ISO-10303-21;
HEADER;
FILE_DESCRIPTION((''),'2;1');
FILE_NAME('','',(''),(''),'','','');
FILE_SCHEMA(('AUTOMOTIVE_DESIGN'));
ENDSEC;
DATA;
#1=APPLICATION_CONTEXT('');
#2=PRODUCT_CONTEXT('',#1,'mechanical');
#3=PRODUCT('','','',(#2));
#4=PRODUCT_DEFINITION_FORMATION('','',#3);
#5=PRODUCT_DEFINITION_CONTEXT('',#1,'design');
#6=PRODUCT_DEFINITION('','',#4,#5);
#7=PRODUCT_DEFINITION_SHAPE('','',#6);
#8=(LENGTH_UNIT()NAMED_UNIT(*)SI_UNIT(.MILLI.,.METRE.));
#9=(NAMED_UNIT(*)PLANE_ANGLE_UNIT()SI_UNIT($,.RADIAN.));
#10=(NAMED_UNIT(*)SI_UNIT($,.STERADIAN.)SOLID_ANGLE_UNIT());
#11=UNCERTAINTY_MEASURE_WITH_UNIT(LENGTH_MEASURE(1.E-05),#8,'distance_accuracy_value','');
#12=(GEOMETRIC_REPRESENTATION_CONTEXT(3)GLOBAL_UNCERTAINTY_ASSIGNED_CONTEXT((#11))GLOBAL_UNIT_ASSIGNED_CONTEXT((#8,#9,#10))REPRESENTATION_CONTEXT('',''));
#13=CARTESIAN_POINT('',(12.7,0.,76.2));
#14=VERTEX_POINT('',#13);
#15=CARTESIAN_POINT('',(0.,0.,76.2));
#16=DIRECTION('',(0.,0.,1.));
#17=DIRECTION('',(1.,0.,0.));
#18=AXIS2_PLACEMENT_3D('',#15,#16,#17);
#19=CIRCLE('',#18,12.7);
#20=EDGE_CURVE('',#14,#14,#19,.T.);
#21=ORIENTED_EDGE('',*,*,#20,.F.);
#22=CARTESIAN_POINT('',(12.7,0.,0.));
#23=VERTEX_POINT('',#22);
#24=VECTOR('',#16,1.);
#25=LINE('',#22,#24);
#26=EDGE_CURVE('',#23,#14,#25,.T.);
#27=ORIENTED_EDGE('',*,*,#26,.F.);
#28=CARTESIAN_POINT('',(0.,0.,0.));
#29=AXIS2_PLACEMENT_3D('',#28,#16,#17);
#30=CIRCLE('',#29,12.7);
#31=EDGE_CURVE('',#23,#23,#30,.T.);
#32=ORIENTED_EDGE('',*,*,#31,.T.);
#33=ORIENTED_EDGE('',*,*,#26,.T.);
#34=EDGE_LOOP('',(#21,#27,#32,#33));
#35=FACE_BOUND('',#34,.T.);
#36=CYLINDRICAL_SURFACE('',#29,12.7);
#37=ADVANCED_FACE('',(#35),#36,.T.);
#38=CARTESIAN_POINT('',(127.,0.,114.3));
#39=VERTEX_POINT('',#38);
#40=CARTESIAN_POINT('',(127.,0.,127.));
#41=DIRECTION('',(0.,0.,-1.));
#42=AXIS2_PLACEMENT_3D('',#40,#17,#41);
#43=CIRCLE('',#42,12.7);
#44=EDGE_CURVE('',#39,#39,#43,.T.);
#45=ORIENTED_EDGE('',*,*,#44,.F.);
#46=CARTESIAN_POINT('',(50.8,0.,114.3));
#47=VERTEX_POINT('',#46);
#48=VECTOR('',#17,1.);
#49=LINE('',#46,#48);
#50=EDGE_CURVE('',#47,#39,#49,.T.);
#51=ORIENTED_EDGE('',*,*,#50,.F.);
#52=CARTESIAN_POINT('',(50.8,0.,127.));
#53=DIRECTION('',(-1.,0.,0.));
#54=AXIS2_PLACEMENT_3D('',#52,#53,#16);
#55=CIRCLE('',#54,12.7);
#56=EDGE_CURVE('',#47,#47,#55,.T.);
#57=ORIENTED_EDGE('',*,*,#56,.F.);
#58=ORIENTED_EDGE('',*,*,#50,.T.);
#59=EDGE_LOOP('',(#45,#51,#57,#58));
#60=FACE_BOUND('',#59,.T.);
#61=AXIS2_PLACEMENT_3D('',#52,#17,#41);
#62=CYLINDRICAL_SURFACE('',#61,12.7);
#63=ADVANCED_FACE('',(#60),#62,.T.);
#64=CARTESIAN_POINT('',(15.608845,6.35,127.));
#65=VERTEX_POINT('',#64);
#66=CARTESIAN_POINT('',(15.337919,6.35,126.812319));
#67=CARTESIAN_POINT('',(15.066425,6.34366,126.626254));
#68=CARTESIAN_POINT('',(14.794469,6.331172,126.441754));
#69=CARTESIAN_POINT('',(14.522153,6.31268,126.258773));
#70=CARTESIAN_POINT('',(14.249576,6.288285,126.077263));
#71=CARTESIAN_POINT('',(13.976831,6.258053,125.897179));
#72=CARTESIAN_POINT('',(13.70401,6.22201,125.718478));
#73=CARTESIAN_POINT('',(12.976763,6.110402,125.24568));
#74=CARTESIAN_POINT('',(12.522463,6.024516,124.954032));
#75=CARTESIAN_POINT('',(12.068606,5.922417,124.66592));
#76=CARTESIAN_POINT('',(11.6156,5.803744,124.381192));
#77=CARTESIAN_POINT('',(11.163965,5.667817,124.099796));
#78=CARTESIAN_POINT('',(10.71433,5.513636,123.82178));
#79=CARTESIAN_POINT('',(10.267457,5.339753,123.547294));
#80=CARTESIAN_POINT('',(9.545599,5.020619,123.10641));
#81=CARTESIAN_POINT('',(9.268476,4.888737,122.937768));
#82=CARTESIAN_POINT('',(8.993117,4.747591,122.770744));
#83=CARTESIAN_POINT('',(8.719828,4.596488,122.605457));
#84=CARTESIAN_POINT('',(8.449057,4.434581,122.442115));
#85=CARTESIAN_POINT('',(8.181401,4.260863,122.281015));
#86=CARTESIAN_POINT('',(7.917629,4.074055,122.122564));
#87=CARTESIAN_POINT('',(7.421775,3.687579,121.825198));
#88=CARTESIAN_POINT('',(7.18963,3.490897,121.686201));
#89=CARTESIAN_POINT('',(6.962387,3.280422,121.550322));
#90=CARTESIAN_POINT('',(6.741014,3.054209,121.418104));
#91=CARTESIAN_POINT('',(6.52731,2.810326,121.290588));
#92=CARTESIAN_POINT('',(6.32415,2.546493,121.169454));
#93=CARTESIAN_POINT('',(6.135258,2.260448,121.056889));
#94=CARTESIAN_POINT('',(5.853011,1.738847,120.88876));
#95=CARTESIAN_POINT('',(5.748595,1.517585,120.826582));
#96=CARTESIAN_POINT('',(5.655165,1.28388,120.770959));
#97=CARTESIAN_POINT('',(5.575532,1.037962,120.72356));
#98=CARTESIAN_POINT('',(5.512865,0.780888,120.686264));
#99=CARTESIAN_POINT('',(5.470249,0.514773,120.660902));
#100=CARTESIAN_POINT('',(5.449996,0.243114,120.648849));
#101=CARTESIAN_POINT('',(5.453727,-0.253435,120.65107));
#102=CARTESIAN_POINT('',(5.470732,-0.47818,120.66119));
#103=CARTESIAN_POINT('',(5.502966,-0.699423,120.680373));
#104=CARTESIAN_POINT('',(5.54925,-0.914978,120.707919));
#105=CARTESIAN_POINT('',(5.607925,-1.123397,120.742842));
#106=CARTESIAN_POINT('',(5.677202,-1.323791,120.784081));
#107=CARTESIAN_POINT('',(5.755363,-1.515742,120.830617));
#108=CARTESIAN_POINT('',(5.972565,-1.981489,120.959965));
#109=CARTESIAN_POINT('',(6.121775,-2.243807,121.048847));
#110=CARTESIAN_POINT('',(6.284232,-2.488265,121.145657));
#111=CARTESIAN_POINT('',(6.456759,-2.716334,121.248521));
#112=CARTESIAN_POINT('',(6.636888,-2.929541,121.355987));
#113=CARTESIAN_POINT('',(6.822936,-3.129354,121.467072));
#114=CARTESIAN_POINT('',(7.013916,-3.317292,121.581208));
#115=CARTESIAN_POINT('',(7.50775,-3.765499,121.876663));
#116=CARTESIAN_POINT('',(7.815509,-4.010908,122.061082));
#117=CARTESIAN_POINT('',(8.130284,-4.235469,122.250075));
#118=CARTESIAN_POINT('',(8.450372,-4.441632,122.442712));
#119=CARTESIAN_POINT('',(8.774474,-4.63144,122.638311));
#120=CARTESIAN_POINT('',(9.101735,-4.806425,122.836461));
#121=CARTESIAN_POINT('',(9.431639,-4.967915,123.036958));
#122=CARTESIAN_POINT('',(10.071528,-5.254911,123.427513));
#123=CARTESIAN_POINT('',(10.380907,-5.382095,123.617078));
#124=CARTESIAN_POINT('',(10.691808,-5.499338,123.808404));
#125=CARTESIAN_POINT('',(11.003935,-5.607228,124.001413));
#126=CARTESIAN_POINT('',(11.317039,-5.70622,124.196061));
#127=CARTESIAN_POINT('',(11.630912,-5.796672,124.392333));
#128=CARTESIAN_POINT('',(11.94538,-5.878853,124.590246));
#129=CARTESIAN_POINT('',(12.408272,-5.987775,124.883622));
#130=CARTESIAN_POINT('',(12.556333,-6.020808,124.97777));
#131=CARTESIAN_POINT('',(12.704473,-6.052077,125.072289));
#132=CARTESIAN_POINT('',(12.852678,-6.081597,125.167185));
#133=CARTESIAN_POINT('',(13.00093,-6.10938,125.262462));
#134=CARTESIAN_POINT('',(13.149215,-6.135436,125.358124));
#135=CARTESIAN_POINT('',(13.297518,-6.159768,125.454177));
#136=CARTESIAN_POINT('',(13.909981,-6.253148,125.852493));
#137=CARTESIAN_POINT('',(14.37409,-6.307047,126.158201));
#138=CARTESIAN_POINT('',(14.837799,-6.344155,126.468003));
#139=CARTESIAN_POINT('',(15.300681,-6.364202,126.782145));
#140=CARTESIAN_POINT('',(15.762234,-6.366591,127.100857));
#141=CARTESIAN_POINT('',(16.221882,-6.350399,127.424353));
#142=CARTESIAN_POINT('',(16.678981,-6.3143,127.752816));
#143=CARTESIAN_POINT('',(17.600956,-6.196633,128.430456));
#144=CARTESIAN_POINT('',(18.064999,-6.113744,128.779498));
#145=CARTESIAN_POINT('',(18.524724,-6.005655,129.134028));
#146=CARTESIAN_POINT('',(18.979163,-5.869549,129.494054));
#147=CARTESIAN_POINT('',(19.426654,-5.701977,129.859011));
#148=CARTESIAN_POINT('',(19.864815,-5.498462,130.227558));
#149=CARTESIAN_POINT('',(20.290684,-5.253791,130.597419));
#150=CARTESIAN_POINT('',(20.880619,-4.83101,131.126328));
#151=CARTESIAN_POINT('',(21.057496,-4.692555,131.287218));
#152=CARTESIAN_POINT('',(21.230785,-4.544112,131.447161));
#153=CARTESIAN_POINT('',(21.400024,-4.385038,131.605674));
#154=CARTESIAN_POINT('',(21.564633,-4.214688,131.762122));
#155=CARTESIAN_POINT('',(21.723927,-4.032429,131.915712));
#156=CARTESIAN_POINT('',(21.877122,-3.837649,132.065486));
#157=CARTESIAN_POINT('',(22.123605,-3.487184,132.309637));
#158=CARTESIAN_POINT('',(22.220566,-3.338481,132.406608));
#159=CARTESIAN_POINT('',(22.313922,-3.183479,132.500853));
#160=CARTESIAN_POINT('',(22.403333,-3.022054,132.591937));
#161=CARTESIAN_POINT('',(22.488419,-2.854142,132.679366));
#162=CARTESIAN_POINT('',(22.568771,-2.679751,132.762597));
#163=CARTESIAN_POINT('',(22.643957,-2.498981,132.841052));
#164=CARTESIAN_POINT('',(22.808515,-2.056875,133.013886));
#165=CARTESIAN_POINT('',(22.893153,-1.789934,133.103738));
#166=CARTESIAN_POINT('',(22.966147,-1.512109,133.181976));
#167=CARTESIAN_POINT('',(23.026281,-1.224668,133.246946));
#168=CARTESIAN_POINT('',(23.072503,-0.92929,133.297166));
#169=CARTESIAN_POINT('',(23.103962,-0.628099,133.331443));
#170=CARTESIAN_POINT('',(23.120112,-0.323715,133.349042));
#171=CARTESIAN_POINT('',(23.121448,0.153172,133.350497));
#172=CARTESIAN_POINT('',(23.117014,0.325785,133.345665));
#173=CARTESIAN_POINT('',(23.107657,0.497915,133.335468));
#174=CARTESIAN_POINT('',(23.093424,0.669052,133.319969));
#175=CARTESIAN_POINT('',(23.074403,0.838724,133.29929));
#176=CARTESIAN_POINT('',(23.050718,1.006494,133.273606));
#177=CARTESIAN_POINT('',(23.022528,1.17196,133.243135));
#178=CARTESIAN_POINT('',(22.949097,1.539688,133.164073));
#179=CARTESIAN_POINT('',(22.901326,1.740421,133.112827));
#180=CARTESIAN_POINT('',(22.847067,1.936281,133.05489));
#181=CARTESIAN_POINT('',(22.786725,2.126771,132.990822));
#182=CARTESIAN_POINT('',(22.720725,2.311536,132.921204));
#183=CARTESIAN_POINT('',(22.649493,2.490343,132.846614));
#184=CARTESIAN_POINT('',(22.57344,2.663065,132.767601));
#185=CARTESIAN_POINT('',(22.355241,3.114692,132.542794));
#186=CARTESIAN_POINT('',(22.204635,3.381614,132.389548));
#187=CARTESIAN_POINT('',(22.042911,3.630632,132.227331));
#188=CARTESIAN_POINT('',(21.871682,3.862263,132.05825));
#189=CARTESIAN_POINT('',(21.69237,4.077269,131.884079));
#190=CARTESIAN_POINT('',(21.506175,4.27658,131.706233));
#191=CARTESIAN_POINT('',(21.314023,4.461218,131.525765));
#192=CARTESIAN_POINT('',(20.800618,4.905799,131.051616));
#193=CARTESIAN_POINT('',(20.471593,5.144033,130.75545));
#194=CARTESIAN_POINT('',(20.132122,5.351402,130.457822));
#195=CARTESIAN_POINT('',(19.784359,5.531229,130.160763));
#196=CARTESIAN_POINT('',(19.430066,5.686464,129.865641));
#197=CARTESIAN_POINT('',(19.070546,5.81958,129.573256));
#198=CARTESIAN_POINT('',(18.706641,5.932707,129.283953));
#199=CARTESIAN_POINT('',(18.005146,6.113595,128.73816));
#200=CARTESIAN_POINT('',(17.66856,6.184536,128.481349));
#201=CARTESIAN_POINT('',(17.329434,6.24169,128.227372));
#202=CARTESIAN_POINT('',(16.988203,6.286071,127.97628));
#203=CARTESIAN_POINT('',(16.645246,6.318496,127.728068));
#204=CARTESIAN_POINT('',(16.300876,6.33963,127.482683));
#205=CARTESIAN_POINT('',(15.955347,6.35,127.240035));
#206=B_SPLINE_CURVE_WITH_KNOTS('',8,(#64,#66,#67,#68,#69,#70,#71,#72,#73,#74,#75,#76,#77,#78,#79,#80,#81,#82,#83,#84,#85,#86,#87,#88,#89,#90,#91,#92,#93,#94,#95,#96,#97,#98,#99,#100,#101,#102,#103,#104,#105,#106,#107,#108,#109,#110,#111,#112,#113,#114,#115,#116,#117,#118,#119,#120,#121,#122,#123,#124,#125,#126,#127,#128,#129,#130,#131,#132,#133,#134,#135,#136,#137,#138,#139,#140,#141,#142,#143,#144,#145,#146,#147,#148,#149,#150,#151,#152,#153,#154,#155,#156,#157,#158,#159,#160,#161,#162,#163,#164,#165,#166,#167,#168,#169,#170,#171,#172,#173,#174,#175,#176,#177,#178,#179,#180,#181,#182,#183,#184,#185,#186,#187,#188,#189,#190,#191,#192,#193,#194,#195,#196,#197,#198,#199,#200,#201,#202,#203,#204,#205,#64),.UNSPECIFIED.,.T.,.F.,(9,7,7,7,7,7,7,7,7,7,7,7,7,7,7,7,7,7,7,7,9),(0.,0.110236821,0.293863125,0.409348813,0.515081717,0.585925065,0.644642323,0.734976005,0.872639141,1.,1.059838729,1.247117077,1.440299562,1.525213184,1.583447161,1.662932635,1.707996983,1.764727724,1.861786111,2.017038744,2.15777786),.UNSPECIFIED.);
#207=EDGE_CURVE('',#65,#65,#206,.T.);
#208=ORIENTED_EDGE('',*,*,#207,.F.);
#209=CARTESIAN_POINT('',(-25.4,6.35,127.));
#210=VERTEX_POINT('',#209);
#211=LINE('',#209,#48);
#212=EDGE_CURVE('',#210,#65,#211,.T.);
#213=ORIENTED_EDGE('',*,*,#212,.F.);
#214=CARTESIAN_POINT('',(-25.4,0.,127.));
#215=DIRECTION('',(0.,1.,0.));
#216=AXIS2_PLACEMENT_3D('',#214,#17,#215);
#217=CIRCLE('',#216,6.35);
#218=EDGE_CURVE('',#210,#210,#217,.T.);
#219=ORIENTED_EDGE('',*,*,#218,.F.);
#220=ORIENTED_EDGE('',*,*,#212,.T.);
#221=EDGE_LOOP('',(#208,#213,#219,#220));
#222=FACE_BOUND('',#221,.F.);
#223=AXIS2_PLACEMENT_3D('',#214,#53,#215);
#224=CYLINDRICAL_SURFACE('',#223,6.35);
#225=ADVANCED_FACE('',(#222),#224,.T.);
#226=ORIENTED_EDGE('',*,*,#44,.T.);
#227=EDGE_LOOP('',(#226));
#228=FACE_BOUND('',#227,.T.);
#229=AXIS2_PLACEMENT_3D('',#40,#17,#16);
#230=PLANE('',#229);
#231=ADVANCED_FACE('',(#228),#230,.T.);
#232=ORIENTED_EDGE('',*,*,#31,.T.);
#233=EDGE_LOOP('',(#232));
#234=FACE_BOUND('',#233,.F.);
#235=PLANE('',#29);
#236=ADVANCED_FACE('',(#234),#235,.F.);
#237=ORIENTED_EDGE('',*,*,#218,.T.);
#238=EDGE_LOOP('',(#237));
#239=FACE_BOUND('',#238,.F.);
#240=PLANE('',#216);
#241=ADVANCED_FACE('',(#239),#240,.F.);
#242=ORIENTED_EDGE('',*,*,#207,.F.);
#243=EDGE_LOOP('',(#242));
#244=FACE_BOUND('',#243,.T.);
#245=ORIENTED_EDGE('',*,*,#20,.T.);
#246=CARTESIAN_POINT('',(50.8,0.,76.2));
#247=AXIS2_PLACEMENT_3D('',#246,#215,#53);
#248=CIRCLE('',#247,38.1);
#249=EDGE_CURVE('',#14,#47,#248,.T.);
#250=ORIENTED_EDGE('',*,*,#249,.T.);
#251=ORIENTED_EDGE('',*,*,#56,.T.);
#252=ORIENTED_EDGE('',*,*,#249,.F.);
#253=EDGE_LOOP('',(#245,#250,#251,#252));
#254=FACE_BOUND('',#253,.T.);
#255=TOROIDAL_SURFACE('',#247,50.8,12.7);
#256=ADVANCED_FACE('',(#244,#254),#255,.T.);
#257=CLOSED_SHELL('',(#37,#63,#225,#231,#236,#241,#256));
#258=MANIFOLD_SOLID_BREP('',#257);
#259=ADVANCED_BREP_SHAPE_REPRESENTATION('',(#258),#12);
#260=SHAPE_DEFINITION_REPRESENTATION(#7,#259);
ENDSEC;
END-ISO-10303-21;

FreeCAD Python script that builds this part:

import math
import FreeCAD as App
import Part
import Sketcher
from FreeCAD import Vector
Q = App.Units.Quantity

doc = App.newDocument("Part")
params = doc.addObject("Spreadsheet::Sheet", "Params")
for row, (alias, value) in enumerate([
    ("sketch1_diameter", "1 in"),
    ("sketch2_radius", "2 in"),
    ("sketch2_width", "3 in"),
    ("sketch3_diameter", "0.5 in"),
    ("pad1_length", "75 mm"),
], start=1):
    params.set(f"A{row}", alias)
    params.set(f"B{row}", "=" + value)
    params.setAlias(f"B{row}", alias)

body = doc.addObject("PartDesign::Body", "Body")

sketch1 = doc.addObject("Sketcher::SketchObject", "Sketch")
body.addObject(sketch1)
sketch1.AttachmentSupport = (doc.XY_Plane, [""])
sketch1.MapMode = "FlatFace"
sketch1.addGeometry(Part.Circle(Vector(0, 0, 0), Vector(0, 0, 1), 13), False)
sketch1.addConstraint(Sketcher.Constraint("Coincident", 0, 3, -1, 1))
sketch1.addConstraint(Sketcher.Constraint("Diameter", 0, Q("1 in")))
sketch1.setExpression("Constraints[1]", "Params.sketch1_diameter")

sketch2 = doc.addObject("Sketcher::SketchObject", "Sketch001")
body.addObject(sketch2)
sketch2.AttachmentSupport = (doc.XZ_Plane, [""])
sketch2.MapMode = "FlatFace"
sketch2.addGeometry(Part.LineSegment(Vector(0, 0, 0), Vector(0, 76, 0)), False)
sketch2.addGeometry(Part.ArcOfCircle(Part.Circle(Vector(51, 76, 0), Vector(0, 0, 1), 51), math.radians(90), math.radians(180)), False)
sketch2.addGeometry(Part.LineSegment(Vector(51, 127, 0), Vector(127, 127, 0)), False)
sketch2.addConstraint(Sketcher.Constraint("Tangent", 0, 2, 1, 2))
sketch2.addConstraint(Sketcher.Constraint("Tangent", 1, 1, 2, 1))
sketch2.addConstraint(Sketcher.Constraint("Vertical", 0))
sketch2.addConstraint(Sketcher.Constraint("Horizontal", 2))
sketch2.addConstraint(Sketcher.Constraint("Coincident", 0, 1, -1, 1))
sketch2.addConstraint(Sketcher.Constraint("Equal", 2, 0))
sketch2.addConstraint(Sketcher.Constraint("Radius", 1, Q("2 in")))
sketch2.addConstraint(Sketcher.Constraint("DistanceX", 2, 1, 2, 2, Q("3 in")))
sketch2.setExpression("Constraints[6]", "Params.sketch2_radius")
sketch2.setExpression("Constraints[7]", "Params.sketch2_width")
doc.recompute()

additivepipe = doc.addObject("PartDesign::AdditivePipe", "AdditivePipe")
body.addObject(additivepipe)
additivepipe.Profile = sketch1
additivepipe.Spine = (sketch2, ["Edge1", "Edge2", "Edge3"])

sketch3 = doc.addObject("Sketcher::SketchObject", "Sketch002")
body.addObject(sketch3)
sketch3.AttachmentSupport = (doc.YZ_Plane, [""])
sketch3.MapMode = "FlatFace"
sketch3.AttachmentOffset = App.Placement(Vector(0, 0, -1 * 25.4), App.Rotation())
sketch3.addGeometry(Part.Circle(Vector(0, 127, 0), Vector(0, 0, 1), 6), False)
sketch3.addConstraint(Sketcher.Constraint("PointOnObject", 0, 3, -2))
sketch3.addConstraint(Sketcher.Constraint("Diameter", 0, Q("0.5 in")))
sketch3.addConstraint(Sketcher.Constraint("DistanceY", -1, 1, 0, 3, Q("5 in")))
sketch3.setExpression("Constraints[1]", "Params.sketch3_diameter")
pad1 = doc.addObject("PartDesign::Pad", "Pad")
body.addObject(pad1)
pad1.Profile = sketch3
pad1.setExpression("Length", "Params.pad1_length")

doc.recompute()
